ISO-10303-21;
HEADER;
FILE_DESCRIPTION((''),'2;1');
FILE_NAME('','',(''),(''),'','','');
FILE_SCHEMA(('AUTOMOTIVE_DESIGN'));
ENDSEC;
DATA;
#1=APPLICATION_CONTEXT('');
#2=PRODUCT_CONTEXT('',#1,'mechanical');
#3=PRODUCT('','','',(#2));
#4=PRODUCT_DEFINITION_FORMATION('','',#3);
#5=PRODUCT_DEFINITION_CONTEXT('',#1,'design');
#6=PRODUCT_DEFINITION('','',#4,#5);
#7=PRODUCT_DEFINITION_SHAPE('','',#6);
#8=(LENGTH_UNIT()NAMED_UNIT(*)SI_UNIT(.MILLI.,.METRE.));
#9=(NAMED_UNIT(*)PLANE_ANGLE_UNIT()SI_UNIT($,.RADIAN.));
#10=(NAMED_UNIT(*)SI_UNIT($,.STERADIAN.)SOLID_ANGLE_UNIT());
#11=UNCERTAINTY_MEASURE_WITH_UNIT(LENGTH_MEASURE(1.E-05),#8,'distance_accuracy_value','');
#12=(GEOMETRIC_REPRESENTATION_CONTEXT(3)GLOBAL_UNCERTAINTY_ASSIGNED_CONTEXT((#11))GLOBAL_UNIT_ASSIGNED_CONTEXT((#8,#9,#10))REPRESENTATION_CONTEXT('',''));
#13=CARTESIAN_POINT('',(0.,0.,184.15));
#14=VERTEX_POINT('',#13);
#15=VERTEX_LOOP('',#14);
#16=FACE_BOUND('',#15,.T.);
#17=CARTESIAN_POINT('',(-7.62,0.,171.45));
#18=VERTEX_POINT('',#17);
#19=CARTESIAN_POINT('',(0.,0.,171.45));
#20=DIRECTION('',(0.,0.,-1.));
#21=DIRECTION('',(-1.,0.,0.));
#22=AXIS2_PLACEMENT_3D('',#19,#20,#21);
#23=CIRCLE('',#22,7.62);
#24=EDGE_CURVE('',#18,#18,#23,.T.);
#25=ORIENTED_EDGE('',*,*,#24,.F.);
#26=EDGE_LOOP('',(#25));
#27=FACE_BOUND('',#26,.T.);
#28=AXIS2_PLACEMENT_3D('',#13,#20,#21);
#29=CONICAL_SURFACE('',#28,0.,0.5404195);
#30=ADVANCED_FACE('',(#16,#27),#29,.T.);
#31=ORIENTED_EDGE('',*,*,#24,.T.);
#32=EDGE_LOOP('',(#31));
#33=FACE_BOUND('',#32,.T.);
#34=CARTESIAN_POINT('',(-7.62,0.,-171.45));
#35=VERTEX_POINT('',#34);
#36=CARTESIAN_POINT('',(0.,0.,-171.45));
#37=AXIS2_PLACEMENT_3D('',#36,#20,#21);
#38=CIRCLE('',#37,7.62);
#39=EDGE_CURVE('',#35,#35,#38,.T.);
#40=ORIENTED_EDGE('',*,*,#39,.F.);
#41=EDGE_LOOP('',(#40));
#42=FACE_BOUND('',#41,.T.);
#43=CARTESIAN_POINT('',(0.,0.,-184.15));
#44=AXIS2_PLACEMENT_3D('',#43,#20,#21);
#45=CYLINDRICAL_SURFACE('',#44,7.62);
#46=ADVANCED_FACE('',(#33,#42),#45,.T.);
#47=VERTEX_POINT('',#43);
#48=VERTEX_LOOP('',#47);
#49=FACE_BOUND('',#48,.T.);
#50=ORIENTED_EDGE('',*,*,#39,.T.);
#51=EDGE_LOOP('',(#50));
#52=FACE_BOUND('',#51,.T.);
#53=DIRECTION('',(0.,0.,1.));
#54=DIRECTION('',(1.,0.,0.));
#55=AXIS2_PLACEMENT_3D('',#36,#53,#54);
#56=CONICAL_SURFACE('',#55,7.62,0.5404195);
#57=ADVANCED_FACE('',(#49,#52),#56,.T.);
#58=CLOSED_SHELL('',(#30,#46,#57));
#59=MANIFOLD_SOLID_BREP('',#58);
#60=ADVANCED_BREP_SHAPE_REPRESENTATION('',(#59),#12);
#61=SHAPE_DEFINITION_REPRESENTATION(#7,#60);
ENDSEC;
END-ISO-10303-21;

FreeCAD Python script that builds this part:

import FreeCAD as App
import Part
import Sketcher

V = App.Vector
Q = App.Units.Quantity

doc = App.newDocument("Part")
params = doc.addObject("Spreadsheet::Sheet", "Params")
for row, (alias, value) in enumerate([
    ("sketch1_height", "14.5 in"),
    ("sketch1_height2", "13.5 in"),
    ("revolution_angle", "360 deg"),
], start=1):
    params.set(f"A{row}", alias)
    params.set(f"B{row}", "=" + value)
    params.setAlias(f"B{row}", alias)

body = doc.addObject("PartDesign::Body", "Body")

# Sketch on XZ plane
sketch1 = doc.addObject("Sketcher::SketchObject", "Sketch")
body.addObject(sketch1)
sketch1.AttachmentSupport = (doc.XZ_Plane, [""])
sketch1.MapMode = "FlatFace"
sketch1.addGeometry(Part.LineSegment(V(0, -184, 0), V(0, 184, 0)), False)
sketch1.addGeometry(Part.LineSegment(V(0, 184, 0), V(8, 171, 0)), False)
sketch1.addGeometry(Part.LineSegment(V(8, 171, 0), V(8, -171, 0)), False)
sketch1.addGeometry(Part.LineSegment(V(8, -171, 0), V(0, -184, 0)), False)
sketch1.addConstraint(Sketcher.Constraint("Coincident", 0, 2, 1, 1))
sketch1.addConstraint(Sketcher.Constraint("Coincident", 1, 2, 2, 1))
sketch1.addConstraint(Sketcher.Constraint("Coincident", 2, 2, 3, 1))
sketch1.addConstraint(Sketcher.Constraint("Coincident", 3, 2, 0, 1))
sketch1.addConstraint(Sketcher.Constraint("Vertical", 0))
sketch1.addConstraint(Sketcher.Constraint("Vertical", 2))
sketch1.addConstraint(Sketcher.Constraint("Symmetric", 0, 2, 3, 2, -1, 1))
sketch1.addConstraint(Sketcher.Constraint("Equal", 1, 3))
sketch1.addConstraint(Sketcher.Constraint("DistanceY", 0, 1, 0, 2, Q("14.5 in")))
sketch1.addConstraint(Sketcher.Constraint("DistanceY", 2, 2, 2, 1, Q("13.5 in")))
sketch1.addConstraint(Sketcher.Constraint("DistanceX", -1, 1, 1, 2, Q("0.3 in")))
sketch1.setExpression("Constraints[8]", "Params.sketch1_height")
sketch1.setExpression("Constraints[9]", "Params.sketch1_height2")
revolution = doc.addObject("PartDesign::Revolution", "Revolution")
body.addObject(revolution)
revolution.Profile = sketch1
revolution.ReferenceAxis = (sketch1, ["V_Axis"])
revolution.setExpression("Angle", "Params.revolution_angle")

doc.recompute()
